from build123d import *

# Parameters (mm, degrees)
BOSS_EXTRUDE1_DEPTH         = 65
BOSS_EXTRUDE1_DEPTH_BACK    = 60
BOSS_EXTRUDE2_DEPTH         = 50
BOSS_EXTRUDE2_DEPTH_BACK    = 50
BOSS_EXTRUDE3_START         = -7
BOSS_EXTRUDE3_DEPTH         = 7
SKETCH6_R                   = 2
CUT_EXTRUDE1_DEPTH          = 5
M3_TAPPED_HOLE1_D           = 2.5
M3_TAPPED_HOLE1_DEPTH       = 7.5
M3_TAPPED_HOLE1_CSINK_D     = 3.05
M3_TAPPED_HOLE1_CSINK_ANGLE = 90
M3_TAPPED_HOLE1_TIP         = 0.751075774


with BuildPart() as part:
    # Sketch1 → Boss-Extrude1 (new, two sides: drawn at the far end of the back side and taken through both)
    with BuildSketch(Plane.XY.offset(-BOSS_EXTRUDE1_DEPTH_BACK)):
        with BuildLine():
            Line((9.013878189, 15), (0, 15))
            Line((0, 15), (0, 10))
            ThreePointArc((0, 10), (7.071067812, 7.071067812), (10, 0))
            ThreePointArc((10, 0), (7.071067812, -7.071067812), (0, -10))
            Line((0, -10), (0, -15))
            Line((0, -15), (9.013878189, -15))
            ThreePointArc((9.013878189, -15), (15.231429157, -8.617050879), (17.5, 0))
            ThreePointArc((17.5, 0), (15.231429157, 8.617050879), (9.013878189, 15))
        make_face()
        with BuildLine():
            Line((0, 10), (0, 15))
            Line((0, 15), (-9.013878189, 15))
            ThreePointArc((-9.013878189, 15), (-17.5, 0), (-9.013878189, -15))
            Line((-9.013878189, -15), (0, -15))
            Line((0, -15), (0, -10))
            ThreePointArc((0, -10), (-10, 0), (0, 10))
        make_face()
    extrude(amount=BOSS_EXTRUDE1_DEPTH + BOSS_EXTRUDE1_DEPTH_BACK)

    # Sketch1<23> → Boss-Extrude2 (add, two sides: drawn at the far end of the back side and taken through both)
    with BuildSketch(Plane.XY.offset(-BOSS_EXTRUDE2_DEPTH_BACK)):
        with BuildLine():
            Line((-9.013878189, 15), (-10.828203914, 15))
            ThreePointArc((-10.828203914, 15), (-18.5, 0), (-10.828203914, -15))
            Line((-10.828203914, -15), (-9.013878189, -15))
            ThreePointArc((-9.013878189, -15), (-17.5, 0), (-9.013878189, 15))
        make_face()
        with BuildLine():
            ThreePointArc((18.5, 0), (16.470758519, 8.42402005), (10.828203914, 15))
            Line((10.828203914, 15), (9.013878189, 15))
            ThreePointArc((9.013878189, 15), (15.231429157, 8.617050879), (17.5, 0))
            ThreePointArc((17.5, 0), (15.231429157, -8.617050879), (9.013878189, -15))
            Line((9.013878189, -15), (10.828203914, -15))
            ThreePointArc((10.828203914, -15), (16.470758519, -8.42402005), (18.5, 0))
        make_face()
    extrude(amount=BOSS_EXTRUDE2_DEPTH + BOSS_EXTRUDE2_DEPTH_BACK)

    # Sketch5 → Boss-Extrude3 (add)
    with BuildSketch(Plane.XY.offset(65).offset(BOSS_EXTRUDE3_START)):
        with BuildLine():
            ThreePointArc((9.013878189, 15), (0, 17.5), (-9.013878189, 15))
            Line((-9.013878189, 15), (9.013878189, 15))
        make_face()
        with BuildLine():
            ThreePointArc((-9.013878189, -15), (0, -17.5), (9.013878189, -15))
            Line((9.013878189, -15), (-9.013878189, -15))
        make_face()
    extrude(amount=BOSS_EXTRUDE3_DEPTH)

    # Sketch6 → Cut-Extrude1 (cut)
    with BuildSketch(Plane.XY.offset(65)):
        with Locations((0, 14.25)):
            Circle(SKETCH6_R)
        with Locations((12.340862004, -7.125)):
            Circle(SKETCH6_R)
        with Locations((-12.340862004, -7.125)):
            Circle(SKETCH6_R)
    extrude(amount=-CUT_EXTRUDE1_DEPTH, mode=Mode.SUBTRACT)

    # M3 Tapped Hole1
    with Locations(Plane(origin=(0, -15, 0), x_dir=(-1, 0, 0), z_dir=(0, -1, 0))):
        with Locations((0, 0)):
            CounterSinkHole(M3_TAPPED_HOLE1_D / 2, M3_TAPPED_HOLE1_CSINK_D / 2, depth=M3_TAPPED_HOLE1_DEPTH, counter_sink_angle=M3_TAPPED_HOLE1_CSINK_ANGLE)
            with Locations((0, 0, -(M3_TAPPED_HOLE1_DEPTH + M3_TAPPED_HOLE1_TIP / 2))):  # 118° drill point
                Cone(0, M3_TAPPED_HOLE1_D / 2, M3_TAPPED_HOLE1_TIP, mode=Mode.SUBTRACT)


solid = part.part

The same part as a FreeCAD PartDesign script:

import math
import FreeCAD as App
import Part
import Sketcher

V = App.Vector
Q = App.Units.Quantity

doc = App.newDocument("Part")
body = doc.addObject("PartDesign::Body", "Body")

sketch1 = doc.addObject("Sketcher::SketchObject", "Sketch")
body.addObject(sketch1)
sketch1.AttachmentSupport = (doc.XY_Plane, [""])
sketch1.MapMode = "FlatFace"
sketch1.addGeometry([
    Part.ArcOfCircle(Part.Circle(V(0, 0, 0), V(0, 0, 1), 17.5), math.radians(-58.997281), math.radians(0)),
    Part.ArcOfCircle(Part.Circle(V(0, 0, 0), V(0, 0, 1), 17.5), math.radians(0), math.radians(58.997281)),
    Part.LineSegment(V(9.013878, 15, 0), V(-9.013878, 15, 0)),
    Part.ArcOfCircle(Part.Circle(V(0, 0, 0), V(0, 0, 1), 17.5), math.radians(121.002719), math.radians(238.997281)),
    Part.LineSegment(V(-9.013878, -15, 0), V(9.013878, -15, 0)),
    Part.ArcOfCircle(Part.Circle(V(0, 0, 0), V(0, 0, 1), 10), math.radians(-90), math.radians(0)),
    Part.ArcOfCircle(Part.Circle(V(0, 0, 0), V(0, 0, 1), 10), math.radians(90), math.radians(270)),
    Part.ArcOfCircle(Part.Circle(V(0, 0, 0), V(0, 0, 1), 10), math.radians(0), math.radians(90)),
], False)
sketch1.addConstraint([
    Sketcher.Constraint("Tangent", 0, 2, 1, 1),
    Sketcher.Constraint("Coincident", 1, 2, 2, 1),
    Sketcher.Constraint("Coincident", 2, 2, 3, 1),
    Sketcher.Constraint("Coincident", 3, 2, 4, 1),
    Sketcher.Constraint("Coincident", 4, 2, 0, 1),
    Sketcher.Constraint("Tangent", 5, 1, 6, 2),
    Sketcher.Constraint("Tangent", 6, 1, 7, 2),
    Sketcher.Constraint("Tangent", 7, 1, 5, 2),
    Sketcher.Constraint("Horizontal", 2),
    Sketcher.Constraint("Horizontal", 4),
    Sketcher.Constraint("Coincident", 0, 3, -1, 1),
    Sketcher.Constraint("Coincident", 3, 3, -1, 1),
    Sketcher.Constraint("Coincident", 5, 3, -1, 1),
    Sketcher.Constraint("Equal", 0, 1),
    Sketcher.Constraint("Equal", 1, 3),
    Sketcher.Constraint("PointOnObject", 0, 2, -1),
    Sketcher.Constraint("PointOnObject", 5, 1, -2),
    Sketcher.Constraint("PointOnObject", 6, 1, -2),
    Sketcher.Constraint("PointOnObject", 7, 1, -1),
    Sketcher.Constraint("Vertical", 2, 2, 3, 2),
    Sketcher.Constraint("Radius", 5, Q("10 mm")),
    Sketcher.Constraint("Radius", 0, Q("17.5 mm")),
    Sketcher.Constraint("DistanceY", -1, 1, 1, 2, Q("15 mm")),
])
pad1 = doc.addObject("PartDesign::Pad", "Pad")
body.addObject(pad1)
pad1.Profile = sketch1
pad1.Type = "TwoLengths"
pad1.Length = 65
pad1.Length2 = 60

sketch2 = doc.addObject("Sketcher::SketchObject", "Sketch001")
body.addObject(sketch2)
sketch2.AttachmentSupport = (doc.XY_Plane, [""])
sketch2.MapMode = "FlatFace"
sketch2.addGeometry([
    Part.LineSegment(V(-9.013878, 15, 0), V(-10.828204, 15, 0)),
    Part.ArcOfCircle(Part.Circle(V(0, 0, 0), V(0, 0, 1), 18.5), math.radians(125.824774), math.radians(234.175226)),
    Part.LineSegment(V(-10.828204, -15, 0), V(-9.013878, -15, 0)),
    Part.ArcOfCircle(Part.Circle(V(0, 0, 0), V(0, 0, 1), 17.5), math.radians(121.002719), math.radians(238.997281)),
    Part.ArcOfCircle(Part.Circle(V(0, 0, 0), V(0, 0, 1), 18.5), math.radians(0), math.radians(54.175226)),
    Part.LineSegment(V(10.828204, 15, 0), V(9.013878, 15, 0)),
    Part.ArcOfCircle(Part.Circle(V(0, 0, 0), V(0, 0, 1), 17.5), math.radians(0), math.radians(58.997281)),
    Part.ArcOfCircle(Part.Circle(V(0, 0, 0), V(0, 0, 1), 17.5), math.radians(-58.997281), math.radians(0)),
    Part.LineSegment(V(9.013878, -15, 0), V(10.828204, -15, 0)),
    Part.ArcOfCircle(Part.Circle(V(0, 0, 0), V(0, 0, 1), 18.5), math.radians(-54.175226), math.radians(0)),
], False)
sketch2.addConstraint([
    Sketcher.Constraint("Coincident", 0, 2, 1, 1),
    Sketcher.Constraint("Coincident", 1, 2, 2, 1),
    Sketcher.Constraint("Coincident", 2, 2, 3, 2),
    Sketcher.Constraint("Coincident", 3, 1, 0, 1),
    Sketcher.Constraint("Coincident", 4, 2, 5, 1),
    Sketcher.Constraint("Coincident", 5, 2, 6, 2),
    Sketcher.Constraint("Tangent", 6, 1, 7, 2),
    Sketcher.Constraint("Coincident", 7, 1, 8, 1),
    Sketcher.Constraint("Coincident", 8, 2, 9, 1),
    Sketcher.Constraint("Tangent", 9, 2, 4, 1),
    Sketcher.Constraint("Horizontal", 0),
    Sketcher.Constraint("Horizontal", 2),
    Sketcher.Constraint("Horizontal", 5),
    Sketcher.Constraint("Horizontal", 8),
    Sketcher.Constraint("Coincident", 1, 3, -1, 1),
    Sketcher.Constraint("Coincident", 3, 3, -1, 1),
    Sketcher.Constraint("Coincident", 4, 3, -1, 1),
    Sketcher.Constraint("Coincident", 6, 3, -1, 1),
    Sketcher.Constraint("Equal", 1, 4),
    Sketcher.Constraint("Equal", 3, 6),
    Sketcher.Constraint("Equal", 6, 7),
    Sketcher.Constraint("Equal", 4, 9),
    Sketcher.Constraint("PointOnObject", 6, 1, -1),
    Sketcher.Constraint("PointOnObject", 9, 2, -1),
    Sketcher.Constraint("Horizontal", 3, 1, 4, 2),
    Sketcher.Constraint("Horizontal", 2, 2, 7, 1),
    Sketcher.Constraint("Vertical", 0, 2, 1, 2),
    Sketcher.Constraint("Radius", 1, Q("18.5 mm")),
    Sketcher.Constraint("Radius", 3, Q("17.5 mm")),
    Sketcher.Constraint("DistanceY", -1, 1, 0, 2, Q("15 mm")),
])
pad2 = doc.addObject("PartDesign::Pad", "Pad001")
body.addObject(pad2)
pad2.Profile = sketch2
pad2.Type = "TwoLengths"
pad2.Length = 50
pad2.Length2 = 50

sketch3 = doc.addObject("Sketcher::SketchObject", "Sketch002")
body.addObject(sketch3)
sketch3.AttachmentSupport = (doc.XY_Plane, [""])
sketch3.MapMode = "FlatFace"
sketch3.AttachmentOffset = App.Placement(V(0, 0, 58), App.Rotation())
sketch3.addGeometry([
    Part.ArcOfCircle(Part.Circle(V(0, 0, 0), V(0, 0, 1), 17.5), math.radians(58.997281), math.radians(121.002719)),
    Part.LineSegment(V(-9.013878, 15, 0), V(9.013878, 15, 0)),
    Part.ArcOfCircle(Part.Circle(V(0, 0, 0), V(0, 0, 1), 17.5), math.radians(-121.002719), math.radians(-58.997281)),
    Part.LineSegment(V(9.013878, -15, 0), V(-9.013878, -15, 0)),
], False)
sketch3.addConstraint([
    Sketcher.Constraint("Coincident", 0, 1, 1, 2),
    Sketcher.Constraint("Coincident", 1, 1, 0, 2),
    Sketcher.Constraint("Coincident", 2, 1, 3, 2),
    Sketcher.Constraint("Coincident", 3, 1, 2, 2),
    Sketcher.Constraint("Horizontal", 1),
    Sketcher.Constraint("Horizontal", 3),
    Sketcher.Constraint("Coincident", 0, 3, -1, 1),
    Sketcher.Constraint("Coincident", 2, 3, -1, 1),
    Sketcher.Constraint("Equal", 0, 2),
    Sketcher.Constraint("Vertical", 1, 1, 2, 1),
    Sketcher.Constraint("Radius", 0, Q("17.5 mm")),
    Sketcher.Constraint("DistanceY", -1, 1, 0, 1, Q("15 mm")),
])
pad3 = doc.addObject("PartDesign::Pad", "Pad002")
body.addObject(pad3)
pad3.Profile = sketch3
pad3.Length = 7

sketch4 = doc.addObject("Sketcher::SketchObject", "Sketch003")
body.addObject(sketch4)
sketch4.AttachmentSupport = (doc.XY_Plane, [""])
sketch4.MapMode = "FlatFace"
sketch4.AttachmentOffset = App.Placement(V(0, 0, 65), App.Rotation())
sketch4.addGeometry([
    Part.Circle(V(0, 14.25, 0), V(0, 0, 1), 2),
    Part.Circle(V(12.340862, -7.125, 0), V(0, 0, 1), 2),
    Part.Circle(V(-12.340862, -7.125, 0), V(0, 0, 1), 2),
], False)
sketch4.addConstraint([
    Sketcher.Constraint("Equal", 0, 1),
    Sketcher.Constraint("Equal", 1, 2),
    Sketcher.Constraint("Symmetric", 1, 3, 2, 3, -2),
    Sketcher.Constraint("PointOnObject", 0, 3, -2),
    Sketcher.Constraint("Diameter", 0, Q("4 mm")),
    Sketcher.Constraint("DistanceY", -1, 1, 0, 3, Q("14.25 mm")),
    Sketcher.Constraint("DistanceY", 1, 3, -1, 1, Q("7.125 mm")),
    Sketcher.Constraint("DistanceX", -1, 1, 1, 3, Q("12.340862 mm")),
])
pocket1 = doc.addObject("PartDesign::Pocket", "Pocket")
body.addObject(pocket1)
pocket1.Profile = sketch4
pocket1.Length = 5

sketch5 = doc.addObject("Sketcher::SketchObject", "Sketch004")
body.addObject(sketch5)
sketch5.AttachmentSupport = (doc.XZ_Plane, [""])
sketch5.MapMode = "FlatFace"
sketch5.AttachmentOffset = App.Placement(V(0, 0, 15), App.Rotation())
sketch5.addGeometry(Part.Circle(V(0, 0, 0), V(0, 0, 1), 1.25), False)
sketch5.addConstraint([
    Sketcher.Constraint("Coincident", 0, 3, -1, 1),
    Sketcher.Constraint("Diameter", 0, Q("2.5 mm")),
])
doc.recompute()
hole = doc.addObject("PartDesign::Hole", "Hole")
body.addObject(hole)
hole.Profile = sketch5
hole.ThreadType = "None"
hole.Diameter = 2.5
hole.DepthType = "Dimension"
hole.Depth = 7.5
hole.DrillPoint = "Angled"
hole.DrillPointAngle = 118
hole.HoleCutType = "Countersink"
hole.HoleCutDiameter = 3.05
hole.HoleCutCountersinkAngle = 90

doc.recompute()
